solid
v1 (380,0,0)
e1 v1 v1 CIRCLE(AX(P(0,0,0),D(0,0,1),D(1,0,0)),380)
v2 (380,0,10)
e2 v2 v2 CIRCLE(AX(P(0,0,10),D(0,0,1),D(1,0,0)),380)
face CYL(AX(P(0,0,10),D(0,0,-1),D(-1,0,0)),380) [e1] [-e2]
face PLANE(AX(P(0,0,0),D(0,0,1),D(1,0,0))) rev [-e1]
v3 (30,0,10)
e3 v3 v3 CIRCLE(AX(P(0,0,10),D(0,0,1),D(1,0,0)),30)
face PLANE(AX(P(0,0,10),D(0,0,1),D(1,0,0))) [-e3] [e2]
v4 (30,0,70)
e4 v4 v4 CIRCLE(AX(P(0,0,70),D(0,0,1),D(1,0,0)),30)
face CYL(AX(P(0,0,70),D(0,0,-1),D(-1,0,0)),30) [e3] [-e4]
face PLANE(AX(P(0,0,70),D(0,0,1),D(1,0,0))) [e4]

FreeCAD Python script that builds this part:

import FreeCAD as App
import Part
import Sketcher
Q = App.Units.Quantity

doc = App.newDocument("Part")
body = doc.addObject("PartDesign::Body", "Body")

# Sketch on XY plane
sketch1 = doc.addObject("Sketcher::SketchObject", "Sketch")
body.addObject(sketch1)
sketch1.AttachmentSupport = (doc.XY_Plane, [""])
sketch1.MapMode = "FlatFace"
sketch1.addGeometry(Part.Circle(App.Vector(0, 0, 0), App.Vector(0, 0, 1), 380), False)
sketch1.addConstraint([
    Sketcher.Constraint("Coincident", 0, 3, -1, 1),
    Sketcher.Constraint("Diameter", 0, Q("760 mm")),
])
pad1 = doc.addObject("PartDesign::Pad", "Pad")
body.addObject(pad1)
pad1.Profile = sketch1
pad1.Length = 10

# Sketch on XY plane
sketch2 = doc.addObject("Sketcher::SketchObject", "Sketch001")
body.addObject(sketch2)
sketch2.AttachmentSupport = (doc.XY_Plane, [""])
sketch2.MapMode = "FlatFace"
sketch2.AttachmentOffset = App.Placement(App.Vector(0, 0, 10), App.Rotation())
sketch2.addGeometry(Part.Circle(App.Vector(0, 0, 0), App.Vector(0, 0, 1), 30), False)
sketch2.addConstraint([
    Sketcher.Constraint("Coincident", 0, 3, -1, 1),
    Sketcher.Constraint("Diameter", 0, Q("60 mm")),
])
pad2 = doc.addObject("PartDesign::Pad", "Pad001")
body.addObject(pad2)
pad2.Profile = sketch2
pad2.Length = 60

doc.recompute()
